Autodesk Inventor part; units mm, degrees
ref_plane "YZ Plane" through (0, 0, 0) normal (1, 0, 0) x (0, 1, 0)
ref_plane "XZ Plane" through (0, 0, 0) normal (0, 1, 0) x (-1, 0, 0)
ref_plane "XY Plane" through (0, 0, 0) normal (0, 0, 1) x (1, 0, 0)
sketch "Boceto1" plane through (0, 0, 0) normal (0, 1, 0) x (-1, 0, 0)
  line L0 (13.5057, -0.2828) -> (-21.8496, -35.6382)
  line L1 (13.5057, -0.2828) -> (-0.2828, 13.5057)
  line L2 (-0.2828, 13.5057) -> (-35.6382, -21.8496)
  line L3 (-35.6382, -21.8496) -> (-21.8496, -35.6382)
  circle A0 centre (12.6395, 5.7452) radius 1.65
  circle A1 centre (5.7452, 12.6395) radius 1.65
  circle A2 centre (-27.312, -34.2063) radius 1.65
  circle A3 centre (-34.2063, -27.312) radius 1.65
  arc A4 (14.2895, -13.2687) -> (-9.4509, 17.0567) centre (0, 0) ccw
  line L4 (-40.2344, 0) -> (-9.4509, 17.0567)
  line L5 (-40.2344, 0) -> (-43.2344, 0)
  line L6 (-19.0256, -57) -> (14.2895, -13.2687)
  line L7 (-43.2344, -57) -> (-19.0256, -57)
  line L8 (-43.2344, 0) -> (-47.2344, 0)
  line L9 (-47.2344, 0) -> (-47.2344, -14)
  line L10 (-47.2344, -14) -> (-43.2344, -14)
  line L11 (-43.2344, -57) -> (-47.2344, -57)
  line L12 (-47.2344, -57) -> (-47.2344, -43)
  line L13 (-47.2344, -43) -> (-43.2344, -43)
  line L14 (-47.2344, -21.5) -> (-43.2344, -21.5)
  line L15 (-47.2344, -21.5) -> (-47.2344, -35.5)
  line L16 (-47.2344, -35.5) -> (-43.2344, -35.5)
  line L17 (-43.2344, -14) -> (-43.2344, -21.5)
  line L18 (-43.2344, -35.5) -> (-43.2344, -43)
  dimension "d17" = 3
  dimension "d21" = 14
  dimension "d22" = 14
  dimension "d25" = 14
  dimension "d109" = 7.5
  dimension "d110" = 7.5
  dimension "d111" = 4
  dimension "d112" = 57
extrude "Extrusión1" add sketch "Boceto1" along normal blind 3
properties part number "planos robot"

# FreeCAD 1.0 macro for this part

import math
import FreeCAD as App
import Part
import Sketcher
from FreeCAD import Vector
Q = App.Units.Quantity

doc = App.newDocument("Part")
body = doc.addObject("PartDesign::Body", "Body")

# Sketch on XZ plane
sketch1 = body.newObject("Sketcher::SketchObject", "Sketch")
sketch1.AttachmentSupport = (doc.getObject("XZ_Plane"), [""])
sketch1.MapMode = "FlatFace"
sketch1.addGeometry([
    Part.LineSegment(Vector(19.0256, -57, 0), Vector(-14.2895, -13.2687, 0)),  # 0
    Part.ArcOfCircle(Part.Circle(Vector(0, 0, 0), Vector(0, 0, 1), 19.499954), math.radians(61.009722), math.radians(222.878642)),  # 1
    Part.LineSegment(Vector(9.4509, 17.0567, 0), Vector(40.2344, 0, 0)),  # 2
    Part.LineSegment(Vector(40.2344, 0, 0), Vector(47.2344, 0, 0)),  # 3
    Part.LineSegment(Vector(47.2344, 0, 0), Vector(47.2344, -14, 0)),  # 4
    Part.LineSegment(Vector(47.2344, -14, 0), Vector(43.2344, -14, 0)),  # 5
    Part.LineSegment(Vector(43.2344, -14, 0), Vector(43.2344, -21.5, 0)),  # 6
    Part.LineSegment(Vector(43.2344, -21.5, 0), Vector(47.2344, -21.5, 0)),  # 7
    Part.LineSegment(Vector(47.2344, -21.5, 0), Vector(47.2344, -35.5, 0)),  # 8
    Part.LineSegment(Vector(47.2344, -35.5, 0), Vector(43.2344, -35.5, 0)),  # 9
    Part.LineSegment(Vector(43.2344, -35.5, 0), Vector(43.2344, -43, 0)),  # 10
    Part.LineSegment(Vector(43.2344, -43, 0), Vector(47.2344, -43, 0)),  # 11
    Part.LineSegment(Vector(47.2344, -43, 0), Vector(47.2344, -57, 0)),  # 12
    Part.LineSegment(Vector(47.2344, -57, 0), Vector(19.0256, -57, 0)),  # 13
    Part.Circle(Vector(34.2063, -27.312, 0), Vector(0, 0, 1), 1.65),  # 14
    Part.Circle(Vector(27.312, -34.2063, 0), Vector(0, 0, 1), 1.65),  # 15
    Part.LineSegment(Vector(0.2828, 13.5057, 0), Vector(-13.5057, -0.2828, 0)),  # 16
    Part.LineSegment(Vector(-13.5057, -0.2828, 0), Vector(21.8496, -35.6382, 0)),  # 17
    Part.LineSegment(Vector(21.8496, -35.6382, 0), Vector(35.6382, -21.8496, 0)),  # 18
    Part.LineSegment(Vector(35.6382, -21.8496, 0), Vector(0.2828, 13.5057, 0)),  # 19
    Part.Circle(Vector(-12.6395, 5.7452, 0), Vector(0, 0, 1), 1.65),  # 20
    Part.Circle(Vector(-5.7452, 12.6395, 0), Vector(0, 0, 1), 1.65),  # 21
], False)
sketch1.addConstraint([
    Sketcher.Constraint("Coincident", 0, 2, 1, 2),
    Sketcher.Constraint("Tangent", 1, 1, 2, 1),
    Sketcher.Constraint("Coincident", 2, 2, 3, 1),
    Sketcher.Constraint("Coincident", 3, 2, 4, 1),
    Sketcher.Constraint("Coincident", 4, 2, 5, 1),
    Sketcher.Constraint("Coincident", 5, 2, 6, 1),
    Sketcher.Constraint("Coincident", 6, 2, 7, 1),
    Sketcher.Constraint("Coincident", 7, 2, 8, 1),
    Sketcher.Constraint("Coincident", 8, 2, 9, 1),
    Sketcher.Constraint("Coincident", 9, 2, 10, 1),
    Sketcher.Constraint("Coincident", 10, 2, 11, 1),
    Sketcher.Constraint("Coincident", 11, 2, 12, 1),
    Sketcher.Constraint("Coincident", 12, 2, 13, 1),
    Sketcher.Constraint("Coincident", 13, 2, 0, 1),
    Sketcher.Constraint("Coincident", 16, 2, 17, 1),
    Sketcher.Constraint("Coincident", 17, 2, 18, 1),
    Sketcher.Constraint("Coincident", 18, 2, 19, 1),
    Sketcher.Constraint("Coincident", 19, 2, 16, 1),
    Sketcher.Constraint("Horizontal", 3),
    Sketcher.Constraint("Vertical", 4),
    Sketcher.Constraint("Horizontal", 5),
    Sketcher.Constraint("Vertical", 6),
    Sketcher.Constraint("Horizontal", 7),
    Sketcher.Constraint("Vertical", 8),
    Sketcher.Constraint("Horizontal", 9),
    Sketcher.Constraint("Vertical", 10),
    Sketcher.Constraint("Horizontal", 11),
    Sketcher.Constraint("Vertical", 12),
    Sketcher.Constraint("Horizontal", 13),
    Sketcher.Constraint("Coincident", 1, 3, -1, 1),
    Sketcher.Constraint("Equal", 14, 15),
    Sketcher.Constraint("Equal", 15, 20),
    Sketcher.Constraint("Equal", 20, 21),
    Sketcher.Constraint("PointOnObject", 2, 2, -1),
    Sketcher.Constraint("Perpendicular", 16, 17),
    Sketcher.Constraint("Perpendicular", 17, 18),
    Sketcher.Constraint("Perpendicular", 18, 19),
    Sketcher.Constraint("Vertical", 4, 2, 7, 2),
    Sketcher.Constraint("Vertical", 6, 2, 9, 2),
    Sketcher.Constraint("Vertical", 8, 2, 11, 2),
    Sketcher.Constraint("Equal", 4, 8),
    Sketcher.Constraint("Equal", 6, 10),
    Sketcher.Constraint("Equal", 8, 12),
    Sketcher.Constraint("DistanceX", 5, 2, 5, 1, Q("4 mm")),
    Sketcher.Constraint("DistanceY", 4, 2, 4, 1, Q("14 mm")),
    Sketcher.Constraint("DistanceY", 6, 2, 6, 1, Q("7.5 mm")),
    Sketcher.Constraint("DistanceX", 2, 2, 5, 2, Q("3 mm")),
    Sketcher.Constraint("Diameter", 14, Q("3.3 mm")),
    Sketcher.Constraint("Radius", 1, Q("19.5 mm")),
    Sketcher.Constraint("Angle", 16, Q("-135 deg")),
    Sketcher.Constraint("Distance", 17, Q("50 mm")),
    Sketcher.Constraint("Angle", 0, Q("127.3006 deg")),
    Sketcher.Constraint("Distance", 16, Q("19.5 mm")),
    Sketcher.Constraint("Angle", 2, Q("-28.9902 deg")),
    Sketcher.Constraint("DistanceX", 0, 2, 20, 3, Q("1.65 mm")),
    Sketcher.Constraint("DistanceX", 13, 2, 13, 1, Q("28.2088 mm")),
    Sketcher.Constraint("DistanceY", 14, 3, -1, 1, Q("27.312 mm")),
    Sketcher.Constraint("DistanceX", -1, 1, 15, 3, Q("27.312 mm")),
    Sketcher.Constraint("DistanceY", 0, 2, 20, 3, Q("19.014 mm")),
    Sketcher.Constraint("DistanceX", 21, 3, 1, 1, Q("15.196 mm")),
    Sketcher.Constraint("DistanceX", 14, 3, 2, 2, Q("6.028 mm")),
    Sketcher.Constraint("DistanceY", 16, 2, 20, 3, Q("6.028 mm")),
    Sketcher.Constraint("DistanceY", 17, 2, 15, 3, Q("1.432 mm")),
    Sketcher.Constraint("DistanceX", 13, 2, 17, 2, Q("2.824 mm")),
    Sketcher.Constraint("DistanceY", -1, 1, 21, 3, Q("12.6395 mm")),
])
pad1 = body.newObject("PartDesign::Pad", "Pad")
pad1.Profile = sketch1
pad1.Length = 3
pad1.Reversed = True

doc.recompute()
